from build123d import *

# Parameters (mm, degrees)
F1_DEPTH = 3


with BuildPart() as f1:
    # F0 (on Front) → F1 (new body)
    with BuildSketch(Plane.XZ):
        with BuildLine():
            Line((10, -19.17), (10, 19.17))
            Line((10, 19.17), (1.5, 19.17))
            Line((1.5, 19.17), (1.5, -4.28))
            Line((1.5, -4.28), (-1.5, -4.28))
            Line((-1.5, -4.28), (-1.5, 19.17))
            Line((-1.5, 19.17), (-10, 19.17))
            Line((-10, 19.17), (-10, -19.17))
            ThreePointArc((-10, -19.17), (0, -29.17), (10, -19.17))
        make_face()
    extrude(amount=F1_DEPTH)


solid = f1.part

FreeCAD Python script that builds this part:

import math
import FreeCAD as App
import Part
import Sketcher

V = App.Vector
Q = App.Units.Quantity

doc = App.newDocument("Part")
body = doc.addObject("PartDesign::Body", "Body")

# Sketch on XZ plane
sketch1 = body.newObject("Sketcher::SketchObject", "Sketch")
sketch1.AttachmentSupport = (doc.getObject("XZ_Plane"), [""])
sketch1.MapMode = "FlatFace"
sketch1.addGeometry([
    Part.LineSegment(V(10, -19.2, 0), V(10, 19.2, 0)),  # 0
    Part.LineSegment(V(10, 19.2, 0), V(1.5, 19.2, 0)),  # 1
    Part.LineSegment(V(1.5, 19.2, 0), V(1.5, -4.3, 0)),  # 2
    Part.LineSegment(V(1.5, -4.3, 0), V(-1.5, -4.3, 0)),  # 3
    Part.LineSegment(V(-1.5, -4.3, 0), V(-1.5, 19.2, 0)),  # 4
    Part.LineSegment(V(-1.5, 19.2, 0), V(-10, 19.2, 0)),  # 5
    Part.LineSegment(V(-10, 19.2, 0), V(-10, -19.2, 0)),  # 6
    Part.ArcOfCircle(Part.Circle(V(0, -19.2, 0), V(0, 0, 1), 10), math.radians(180), math.radians(360)),  # 7
], False)
sketch1.addConstraint([
    Sketcher.Constraint("Coincident", 0, 2, 1, 1),
    Sketcher.Constraint("Coincident", 1, 2, 2, 1),
    Sketcher.Constraint("Coincident", 2, 2, 3, 1),
    Sketcher.Constraint("Coincident", 3, 2, 4, 1),
    Sketcher.Constraint("Coincident", 4, 2, 5, 1),
    Sketcher.Constraint("Coincident", 5, 2, 6, 1),
    Sketcher.Constraint("Tangent", 6, 2, 7, 1),
    Sketcher.Constraint("Tangent", 7, 2, 0, 1),
    Sketcher.Constraint("Vertical", 0),
    Sketcher.Constraint("Horizontal", 1),
    Sketcher.Constraint("Vertical", 2),
    Sketcher.Constraint("Horizontal", 3),
    Sketcher.Constraint("Vertical", 4),
    Sketcher.Constraint("Horizontal", 5),
    Sketcher.Constraint("Vertical", 6),
    Sketcher.Constraint("Symmetric", 0, 2, 6, 2, -1, 1),
    Sketcher.Constraint("Symmetric", 1, 2, 4, 2, -2),
    Sketcher.Constraint("Radius", 7, Q("10 mm")),
    Sketcher.Constraint("DistanceX", 3, 2, 3, 1, Q("3 mm")),
    Sketcher.Constraint("DistanceY", 0, 1, 0, 2, Q("38.34 mm")),
    Sketcher.Constraint("DistanceY", 2, 2, 2, 1, Q("23.45 mm")),
])
pad1 = body.newObject("PartDesign::Pad", "Pad")
pad1.Profile = sketch1
pad1.Length = 3

doc.recompute()
